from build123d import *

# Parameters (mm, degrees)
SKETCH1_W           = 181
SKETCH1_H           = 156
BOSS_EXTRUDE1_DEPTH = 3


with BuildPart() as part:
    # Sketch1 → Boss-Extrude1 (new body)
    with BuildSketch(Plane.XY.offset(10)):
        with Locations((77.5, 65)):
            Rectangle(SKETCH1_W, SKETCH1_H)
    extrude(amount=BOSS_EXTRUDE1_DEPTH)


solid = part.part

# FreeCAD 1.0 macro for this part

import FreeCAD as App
import Part
import Sketcher
from FreeCAD import Vector
Q = App.Units.Quantity


def add_polygon(sketch, points):
    """Adds a closed chain of lines whose ends are joined by coincident constraints."""
    first, n = sketch.GeometryCount, len(points)
    for a, b in zip(points, points[1:] + points[:1]):
        sketch.addGeometry(Part.LineSegment(App.Vector(*a, 0), App.Vector(*b, 0)), False)
    for i in range(n):
        sketch.addConstraint(Sketcher.Constraint("Coincident", first + i, 2, first + (i + 1) % n, 1))

doc = App.newDocument("Part")
body = doc.addObject("PartDesign::Body", "Body")

# Sketch on XY plane
sketch1 = body.newObject("Sketcher::SketchObject", "Sketch")
sketch1.AttachmentSupport = (doc.getObject("XY_Plane"), [""])
sketch1.MapMode = "FlatFace"
sketch1.AttachmentOffset = App.Placement(Vector(0, 0, 10), App.Rotation())
add_polygon(sketch1, [(-13, 143), (-13, -13), (168, -13), (168, 143)])  # lines 0-3
sketch1.addConstraint(Sketcher.Constraint("Vertical", 0))
sketch1.addConstraint(Sketcher.Constraint("Horizontal", 1))
sketch1.addConstraint(Sketcher.Constraint("Vertical", 2))
sketch1.addConstraint(Sketcher.Constraint("Horizontal", 3))
sketch1.addConstraint(Sketcher.Constraint("DistanceX", 1, 1, 1, 2, Q("181 mm")))
sketch1.addConstraint(Sketcher.Constraint("DistanceY", 0, 2, 0, 1, Q("156 mm")))
sketch1.addConstraint(Sketcher.Constraint("DistanceX", 0, 2, -1, 1, Q("13 mm")))
sketch1.addConstraint(Sketcher.Constraint("DistanceY", 0, 2, -1, 1, Q("13 mm")))
pad1 = body.newObject("PartDesign::Pad", "Pad")
pad1.Profile = sketch1
pad1.Length = 3

doc.recompute()
